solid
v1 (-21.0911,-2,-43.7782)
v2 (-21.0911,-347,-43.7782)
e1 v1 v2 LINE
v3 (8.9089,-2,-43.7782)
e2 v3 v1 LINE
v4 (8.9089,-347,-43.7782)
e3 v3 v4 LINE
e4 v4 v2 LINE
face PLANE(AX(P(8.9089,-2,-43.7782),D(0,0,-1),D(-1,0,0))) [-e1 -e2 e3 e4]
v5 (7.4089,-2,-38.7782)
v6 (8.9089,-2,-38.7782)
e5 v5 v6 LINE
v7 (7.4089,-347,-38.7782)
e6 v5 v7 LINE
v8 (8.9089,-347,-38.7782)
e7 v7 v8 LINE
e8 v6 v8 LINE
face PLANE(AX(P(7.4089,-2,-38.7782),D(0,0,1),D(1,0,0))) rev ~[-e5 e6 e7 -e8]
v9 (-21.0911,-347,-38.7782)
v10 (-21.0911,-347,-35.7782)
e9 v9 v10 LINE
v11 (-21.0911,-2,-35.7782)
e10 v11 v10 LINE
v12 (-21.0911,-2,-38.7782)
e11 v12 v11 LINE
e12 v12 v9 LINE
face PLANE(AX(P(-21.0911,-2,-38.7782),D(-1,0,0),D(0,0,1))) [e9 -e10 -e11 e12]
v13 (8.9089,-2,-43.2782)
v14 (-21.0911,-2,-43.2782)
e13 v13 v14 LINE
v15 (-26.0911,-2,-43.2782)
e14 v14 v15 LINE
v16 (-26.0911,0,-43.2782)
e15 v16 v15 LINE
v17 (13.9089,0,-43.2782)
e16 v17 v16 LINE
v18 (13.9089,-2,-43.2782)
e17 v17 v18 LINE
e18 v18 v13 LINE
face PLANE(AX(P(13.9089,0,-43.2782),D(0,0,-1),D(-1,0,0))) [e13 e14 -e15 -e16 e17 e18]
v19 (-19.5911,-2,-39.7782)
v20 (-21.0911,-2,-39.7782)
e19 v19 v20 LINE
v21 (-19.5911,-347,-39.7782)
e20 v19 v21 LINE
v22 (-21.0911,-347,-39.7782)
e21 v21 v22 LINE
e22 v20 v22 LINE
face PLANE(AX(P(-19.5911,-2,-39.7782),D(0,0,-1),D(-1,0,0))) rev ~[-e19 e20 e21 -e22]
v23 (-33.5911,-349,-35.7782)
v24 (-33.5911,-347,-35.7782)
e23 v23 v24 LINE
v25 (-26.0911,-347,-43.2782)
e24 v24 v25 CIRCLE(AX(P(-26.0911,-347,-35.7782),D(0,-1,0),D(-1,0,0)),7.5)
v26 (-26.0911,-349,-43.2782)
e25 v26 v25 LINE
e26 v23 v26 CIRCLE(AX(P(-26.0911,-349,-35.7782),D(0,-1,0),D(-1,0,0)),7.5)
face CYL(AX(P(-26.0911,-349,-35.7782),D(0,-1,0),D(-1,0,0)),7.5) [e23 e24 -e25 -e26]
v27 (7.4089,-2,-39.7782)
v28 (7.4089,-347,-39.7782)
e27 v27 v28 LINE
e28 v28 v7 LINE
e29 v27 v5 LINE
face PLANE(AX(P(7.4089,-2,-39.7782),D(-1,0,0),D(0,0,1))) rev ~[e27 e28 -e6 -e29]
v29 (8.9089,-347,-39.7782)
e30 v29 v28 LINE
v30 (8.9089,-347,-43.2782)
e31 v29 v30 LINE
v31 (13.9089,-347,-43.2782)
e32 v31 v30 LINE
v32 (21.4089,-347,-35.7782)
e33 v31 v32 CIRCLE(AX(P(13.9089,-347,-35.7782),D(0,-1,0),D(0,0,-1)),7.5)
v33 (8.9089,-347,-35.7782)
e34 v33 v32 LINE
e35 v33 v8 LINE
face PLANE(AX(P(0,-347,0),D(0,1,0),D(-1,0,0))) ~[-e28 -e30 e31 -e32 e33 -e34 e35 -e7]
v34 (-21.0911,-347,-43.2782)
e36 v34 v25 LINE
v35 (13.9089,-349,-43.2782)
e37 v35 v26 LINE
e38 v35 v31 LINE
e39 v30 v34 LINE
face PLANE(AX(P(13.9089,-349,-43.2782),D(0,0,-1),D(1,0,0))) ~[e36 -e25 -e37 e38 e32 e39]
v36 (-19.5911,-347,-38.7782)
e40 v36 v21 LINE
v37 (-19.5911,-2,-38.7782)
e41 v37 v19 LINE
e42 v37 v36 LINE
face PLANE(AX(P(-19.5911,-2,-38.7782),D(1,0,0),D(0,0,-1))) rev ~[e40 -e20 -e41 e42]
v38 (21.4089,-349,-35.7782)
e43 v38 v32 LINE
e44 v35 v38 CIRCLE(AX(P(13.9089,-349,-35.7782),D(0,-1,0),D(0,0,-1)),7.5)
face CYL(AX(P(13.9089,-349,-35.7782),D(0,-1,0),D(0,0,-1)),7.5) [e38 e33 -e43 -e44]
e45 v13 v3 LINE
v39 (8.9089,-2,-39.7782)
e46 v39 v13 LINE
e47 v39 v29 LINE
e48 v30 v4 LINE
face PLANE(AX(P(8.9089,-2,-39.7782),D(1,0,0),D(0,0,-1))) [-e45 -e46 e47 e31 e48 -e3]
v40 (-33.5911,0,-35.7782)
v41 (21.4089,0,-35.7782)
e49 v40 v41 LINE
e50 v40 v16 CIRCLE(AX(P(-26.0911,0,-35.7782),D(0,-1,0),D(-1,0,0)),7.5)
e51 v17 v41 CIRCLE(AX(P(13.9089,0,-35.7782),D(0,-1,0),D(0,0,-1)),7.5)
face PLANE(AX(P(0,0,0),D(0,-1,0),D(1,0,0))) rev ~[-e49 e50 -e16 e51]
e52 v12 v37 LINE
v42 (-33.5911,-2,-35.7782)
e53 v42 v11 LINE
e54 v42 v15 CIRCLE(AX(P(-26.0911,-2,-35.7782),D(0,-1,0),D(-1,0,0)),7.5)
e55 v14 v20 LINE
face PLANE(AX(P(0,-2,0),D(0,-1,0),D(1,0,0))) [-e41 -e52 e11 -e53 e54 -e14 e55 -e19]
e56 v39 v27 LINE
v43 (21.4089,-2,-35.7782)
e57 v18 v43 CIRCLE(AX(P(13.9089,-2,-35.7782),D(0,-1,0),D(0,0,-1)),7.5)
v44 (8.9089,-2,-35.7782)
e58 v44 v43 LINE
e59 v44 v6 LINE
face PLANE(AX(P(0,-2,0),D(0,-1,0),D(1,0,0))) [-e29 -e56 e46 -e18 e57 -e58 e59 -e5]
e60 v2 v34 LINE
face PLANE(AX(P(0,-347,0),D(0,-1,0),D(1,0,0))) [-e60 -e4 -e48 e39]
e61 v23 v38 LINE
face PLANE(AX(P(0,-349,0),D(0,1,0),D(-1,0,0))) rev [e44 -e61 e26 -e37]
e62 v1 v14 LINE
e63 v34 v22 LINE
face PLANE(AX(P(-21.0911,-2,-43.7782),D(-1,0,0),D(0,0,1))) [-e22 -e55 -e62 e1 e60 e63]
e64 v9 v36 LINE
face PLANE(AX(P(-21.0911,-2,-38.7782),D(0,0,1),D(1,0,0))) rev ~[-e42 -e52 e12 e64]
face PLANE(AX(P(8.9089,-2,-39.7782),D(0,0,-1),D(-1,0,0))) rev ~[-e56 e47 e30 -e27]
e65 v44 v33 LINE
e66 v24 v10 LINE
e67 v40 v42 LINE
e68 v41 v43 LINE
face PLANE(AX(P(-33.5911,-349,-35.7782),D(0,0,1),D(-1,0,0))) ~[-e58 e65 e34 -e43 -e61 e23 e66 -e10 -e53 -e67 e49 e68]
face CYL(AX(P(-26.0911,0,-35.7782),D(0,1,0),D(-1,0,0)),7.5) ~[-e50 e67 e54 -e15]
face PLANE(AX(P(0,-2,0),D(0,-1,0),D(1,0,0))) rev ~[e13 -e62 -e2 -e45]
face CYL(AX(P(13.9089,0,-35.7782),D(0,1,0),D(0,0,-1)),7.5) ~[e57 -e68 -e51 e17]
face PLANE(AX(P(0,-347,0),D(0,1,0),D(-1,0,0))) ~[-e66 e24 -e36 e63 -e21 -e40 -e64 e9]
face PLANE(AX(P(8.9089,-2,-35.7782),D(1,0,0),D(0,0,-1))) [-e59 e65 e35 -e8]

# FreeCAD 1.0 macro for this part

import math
import FreeCAD as App
import Part
import Sketcher

doc = App.newDocument("Part")
body = doc.addObject("PartDesign::Body", "Body")

sketch1 = doc.addObject("Sketcher::SketchObject", "Sketch")
body.addObject(sketch1)
sketch1.AttachmentSupport = (doc.XZ_Plane, [""])
sketch1.MapMode = "FlatFace"
sketch1.addGeometry([
    Part.LineSegment(App.Vector(-26.0911, -43.2782, 0), App.Vector(13.9089, -43.2782, 0)),
    Part.ArcOfCircle(Part.Circle(App.Vector(13.9089, -35.7782, 0), App.Vector(0, 0, 1), 7.5), math.radians(-90), math.radians(0)),
    Part.LineSegment(App.Vector(21.4089, -35.7782, 0), App.Vector(-33.5911, -35.7782, 0)),
    Part.ArcOfCircle(Part.Circle(App.Vector(-26.0911, -35.7782, 0), App.Vector(0, 0, 1), 7.5), math.radians(180), math.radians(270)),
], False)
sketch1.addConstraint([
    Sketcher.Constraint("Tangent", 0, 2, 1, 1),
    Sketcher.Constraint("Coincident", 1, 2, 2, 1),
    Sketcher.Constraint("Coincident", 2, 2, 3, 1),
    Sketcher.Constraint("Tangent", 3, 2, 0, 1),
    Sketcher.Constraint("Horizontal", 0),
    Sketcher.Constraint("Horizontal", 2),
    Sketcher.Constraint("Equal", 1, 3),
    Sketcher.Constraint("Horizontal", 3, 3, 1, 2),
    Sketcher.Constraint("Radius", 1, 7.5),
    Sketcher.Constraint("DistanceX", 0, 1, 0, 2, 40.0),
    Sketcher.Constraint("DistanceX", -1, 1, 1, 3, 13.909),
    Sketcher.Constraint("DistanceY", 1, 3, -1, 1, 35.7782),
])
pad1 = doc.addObject("PartDesign::Pad", "Pad")
body.addObject(pad1)
pad1.Profile = sketch1
pad1.Length = 2

sketch2 = doc.addObject("Sketcher::SketchObject", "Sketch001")
body.addObject(sketch2)
sketch2.AttachmentSupport = (doc.XZ_Plane, [""])
sketch2.MapMode = "FlatFace"
sketch2.AttachmentOffset = App.Placement(App.Vector(0, 0, 2), App.Rotation())
sketch2.addGeometry([
    Part.LineSegment(App.Vector(8.9089, -35.7782, 0), App.Vector(-21.0911, -35.7782, 0)),
    Part.LineSegment(App.Vector(-21.0911, -35.7782, 0), App.Vector(-21.0911, -38.7782, 0)),
    Part.LineSegment(App.Vector(-21.0911, -38.7782, 0), App.Vector(-19.5911, -38.7782, 0)),
    Part.LineSegment(App.Vector(-19.5911, -38.7782, 0), App.Vector(-19.5911, -39.7782, 0)),
    Part.LineSegment(App.Vector(-19.5911, -39.7782, 0), App.Vector(-21.0911, -39.7782, 0)),
    Part.LineSegment(App.Vector(-21.0911, -39.7782, 0), App.Vector(-21.0911, -43.7782, 0)),
    Part.LineSegment(App.Vector(-21.0911, -43.7782, 0), App.Vector(8.9089, -43.7782, 0)),
    Part.LineSegment(App.Vector(8.9089, -43.7782, 0), App.Vector(8.9089, -39.7782, 0)),
    Part.LineSegment(App.Vector(8.9089, -39.7782, 0), App.Vector(7.4089, -39.7782, 0)),
    Part.LineSegment(App.Vector(7.4089, -39.7782, 0), App.Vector(7.4089, -38.7782, 0)),
    Part.LineSegment(App.Vector(7.4089, -38.7782, 0), App.Vector(8.9089, -38.7782, 0)),
    Part.LineSegment(App.Vector(8.9089, -38.7782, 0), App.Vector(8.9089, -35.7782, 0)),
], False)
sketch2.addConstraint([
    Sketcher.Constraint("Coincident", 0, 2, 1, 1),
    Sketcher.Constraint("Coincident", 1, 2, 2, 1),
    Sketcher.Constraint("Coincident", 2, 2, 3, 1),
    Sketcher.Constraint("Coincident", 3, 2, 4, 1),
    Sketcher.Constraint("Coincident", 4, 2, 5, 1),
    Sketcher.Constraint("Coincident", 5, 2, 6, 1),
    Sketcher.Constraint("Coincident", 6, 2, 7, 1),
    Sketcher.Constraint("Coincident", 7, 2, 8, 1),
    Sketcher.Constraint("Coincident", 8, 2, 9, 1),
    Sketcher.Constraint("Coincident", 9, 2, 10, 1),
    Sketcher.Constraint("Coincident", 10, 2, 11, 1),
    Sketcher.Constraint("Coincident", 11, 2, 0, 1),
    Sketcher.Constraint("Horizontal", 0),
    Sketcher.Constraint("Vertical", 1),
    Sketcher.Constraint("Horizontal", 2),
    Sketcher.Constraint("Vertical", 3),
    Sketcher.Constraint("Horizontal", 4),
    Sketcher.Constraint("Vertical", 5),
    Sketcher.Constraint("Horizontal", 6),
    Sketcher.Constraint("Vertical", 7),
    Sketcher.Constraint("Horizontal", 8),
    Sketcher.Constraint("Vertical", 9),
    Sketcher.Constraint("Horizontal", 10),
    Sketcher.Constraint("Vertical", 11),
    Sketcher.Constraint("Horizontal", 4, 2, 7, 2),
    Sketcher.Constraint("Horizontal", 2, 2, 9, 2),
    Sketcher.Constraint("Vertical", 1, 2, 4, 2),
    Sketcher.Constraint("Vertical", 7, 2, 10, 2),
    Sketcher.Constraint("Equal", 4, 8),
    Sketcher.Constraint("DistanceY", 1, 2, 1, 1, 3.0),
    Sketcher.Constraint("DistanceY", 3, 2, 3, 1, 1.0),
    Sketcher.Constraint("DistanceX", 2, 1, 2, 2, 1.5),
    Sketcher.Constraint("DistanceY", 5, 2, 0, 2, 8.0),
    Sketcher.Constraint("DistanceX", 0, 2, 0, 1, 30.0),
    Sketcher.Constraint("DistanceX", 0, 2, -1, 1, 21.091),
    Sketcher.Constraint("DistanceY", 0, 2, -1, 1, 35.7782),
])
pad2 = doc.addObject("PartDesign::Pad", "Pad001")
body.addObject(pad2)
pad2.Profile = sketch2
pad2.Length = 345
doc.recompute()

datumplane = doc.addObject("PartDesign::Plane", "DatumPlane")
body.addObject(datumplane)
datumplane.AttachmentSupport = (doc.XZ_Plane, [""])
datumplane.MapMode = "FlatFace"
datumplane.AttachmentOffset = App.Placement(App.Vector(0, 0, 174.5), App.Rotation())
mirrored = doc.addObject("PartDesign::Mirrored", "Mirrored")
body.addObject(mirrored)
mirrored.Originals = [pad1]
mirrored.MirrorPlane = (datumplane, [""])
body.Tip = mirrored

doc.recompute()
